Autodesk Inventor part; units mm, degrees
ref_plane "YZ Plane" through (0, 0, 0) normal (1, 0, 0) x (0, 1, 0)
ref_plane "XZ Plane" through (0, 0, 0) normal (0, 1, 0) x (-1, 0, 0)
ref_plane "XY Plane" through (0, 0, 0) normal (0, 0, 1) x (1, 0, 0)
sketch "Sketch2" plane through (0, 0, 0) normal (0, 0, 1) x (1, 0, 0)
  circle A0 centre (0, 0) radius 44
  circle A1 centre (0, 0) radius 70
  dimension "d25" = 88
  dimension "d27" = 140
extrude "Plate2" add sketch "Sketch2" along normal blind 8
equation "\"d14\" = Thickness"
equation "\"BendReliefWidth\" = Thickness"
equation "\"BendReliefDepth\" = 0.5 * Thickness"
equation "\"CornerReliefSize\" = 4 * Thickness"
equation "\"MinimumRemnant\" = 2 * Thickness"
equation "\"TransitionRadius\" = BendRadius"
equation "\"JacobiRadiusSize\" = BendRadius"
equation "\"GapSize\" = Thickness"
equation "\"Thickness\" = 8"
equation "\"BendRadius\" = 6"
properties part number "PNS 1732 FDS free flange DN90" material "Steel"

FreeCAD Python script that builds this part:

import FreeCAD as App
import Part
import Sketcher
Q = App.Units.Quantity

doc = App.newDocument("Part")
body = doc.addObject("PartDesign::Body", "Body")

# Sketch on XY plane
sketch1 = doc.addObject("Sketcher::SketchObject", "Sketch")
body.addObject(sketch1)
sketch1.AttachmentSupport = (doc.XY_Plane, [""])
sketch1.MapMode = "FlatFace"
sketch1.addGeometry([
    Part.Circle(App.Vector(0, 0, 0), App.Vector(0, 0, 1), 70),
    Part.Circle(App.Vector(0, 0, 0), App.Vector(0, 0, 1), 44),
], False)
sketch1.addConstraint([
    Sketcher.Constraint("Coincident", 0, 3, -1, 1),
    Sketcher.Constraint("Coincident", 1, 3, -1, 1),
    Sketcher.Constraint("Diameter", 0, Q("140 mm")),
    Sketcher.Constraint("Diameter", 1, Q("88 mm")),
])
pad1 = doc.addObject("PartDesign::Pad", "Pad")
body.addObject(pad1)
pad1.Profile = sketch1
pad1.Length = 8

doc.recompute()
